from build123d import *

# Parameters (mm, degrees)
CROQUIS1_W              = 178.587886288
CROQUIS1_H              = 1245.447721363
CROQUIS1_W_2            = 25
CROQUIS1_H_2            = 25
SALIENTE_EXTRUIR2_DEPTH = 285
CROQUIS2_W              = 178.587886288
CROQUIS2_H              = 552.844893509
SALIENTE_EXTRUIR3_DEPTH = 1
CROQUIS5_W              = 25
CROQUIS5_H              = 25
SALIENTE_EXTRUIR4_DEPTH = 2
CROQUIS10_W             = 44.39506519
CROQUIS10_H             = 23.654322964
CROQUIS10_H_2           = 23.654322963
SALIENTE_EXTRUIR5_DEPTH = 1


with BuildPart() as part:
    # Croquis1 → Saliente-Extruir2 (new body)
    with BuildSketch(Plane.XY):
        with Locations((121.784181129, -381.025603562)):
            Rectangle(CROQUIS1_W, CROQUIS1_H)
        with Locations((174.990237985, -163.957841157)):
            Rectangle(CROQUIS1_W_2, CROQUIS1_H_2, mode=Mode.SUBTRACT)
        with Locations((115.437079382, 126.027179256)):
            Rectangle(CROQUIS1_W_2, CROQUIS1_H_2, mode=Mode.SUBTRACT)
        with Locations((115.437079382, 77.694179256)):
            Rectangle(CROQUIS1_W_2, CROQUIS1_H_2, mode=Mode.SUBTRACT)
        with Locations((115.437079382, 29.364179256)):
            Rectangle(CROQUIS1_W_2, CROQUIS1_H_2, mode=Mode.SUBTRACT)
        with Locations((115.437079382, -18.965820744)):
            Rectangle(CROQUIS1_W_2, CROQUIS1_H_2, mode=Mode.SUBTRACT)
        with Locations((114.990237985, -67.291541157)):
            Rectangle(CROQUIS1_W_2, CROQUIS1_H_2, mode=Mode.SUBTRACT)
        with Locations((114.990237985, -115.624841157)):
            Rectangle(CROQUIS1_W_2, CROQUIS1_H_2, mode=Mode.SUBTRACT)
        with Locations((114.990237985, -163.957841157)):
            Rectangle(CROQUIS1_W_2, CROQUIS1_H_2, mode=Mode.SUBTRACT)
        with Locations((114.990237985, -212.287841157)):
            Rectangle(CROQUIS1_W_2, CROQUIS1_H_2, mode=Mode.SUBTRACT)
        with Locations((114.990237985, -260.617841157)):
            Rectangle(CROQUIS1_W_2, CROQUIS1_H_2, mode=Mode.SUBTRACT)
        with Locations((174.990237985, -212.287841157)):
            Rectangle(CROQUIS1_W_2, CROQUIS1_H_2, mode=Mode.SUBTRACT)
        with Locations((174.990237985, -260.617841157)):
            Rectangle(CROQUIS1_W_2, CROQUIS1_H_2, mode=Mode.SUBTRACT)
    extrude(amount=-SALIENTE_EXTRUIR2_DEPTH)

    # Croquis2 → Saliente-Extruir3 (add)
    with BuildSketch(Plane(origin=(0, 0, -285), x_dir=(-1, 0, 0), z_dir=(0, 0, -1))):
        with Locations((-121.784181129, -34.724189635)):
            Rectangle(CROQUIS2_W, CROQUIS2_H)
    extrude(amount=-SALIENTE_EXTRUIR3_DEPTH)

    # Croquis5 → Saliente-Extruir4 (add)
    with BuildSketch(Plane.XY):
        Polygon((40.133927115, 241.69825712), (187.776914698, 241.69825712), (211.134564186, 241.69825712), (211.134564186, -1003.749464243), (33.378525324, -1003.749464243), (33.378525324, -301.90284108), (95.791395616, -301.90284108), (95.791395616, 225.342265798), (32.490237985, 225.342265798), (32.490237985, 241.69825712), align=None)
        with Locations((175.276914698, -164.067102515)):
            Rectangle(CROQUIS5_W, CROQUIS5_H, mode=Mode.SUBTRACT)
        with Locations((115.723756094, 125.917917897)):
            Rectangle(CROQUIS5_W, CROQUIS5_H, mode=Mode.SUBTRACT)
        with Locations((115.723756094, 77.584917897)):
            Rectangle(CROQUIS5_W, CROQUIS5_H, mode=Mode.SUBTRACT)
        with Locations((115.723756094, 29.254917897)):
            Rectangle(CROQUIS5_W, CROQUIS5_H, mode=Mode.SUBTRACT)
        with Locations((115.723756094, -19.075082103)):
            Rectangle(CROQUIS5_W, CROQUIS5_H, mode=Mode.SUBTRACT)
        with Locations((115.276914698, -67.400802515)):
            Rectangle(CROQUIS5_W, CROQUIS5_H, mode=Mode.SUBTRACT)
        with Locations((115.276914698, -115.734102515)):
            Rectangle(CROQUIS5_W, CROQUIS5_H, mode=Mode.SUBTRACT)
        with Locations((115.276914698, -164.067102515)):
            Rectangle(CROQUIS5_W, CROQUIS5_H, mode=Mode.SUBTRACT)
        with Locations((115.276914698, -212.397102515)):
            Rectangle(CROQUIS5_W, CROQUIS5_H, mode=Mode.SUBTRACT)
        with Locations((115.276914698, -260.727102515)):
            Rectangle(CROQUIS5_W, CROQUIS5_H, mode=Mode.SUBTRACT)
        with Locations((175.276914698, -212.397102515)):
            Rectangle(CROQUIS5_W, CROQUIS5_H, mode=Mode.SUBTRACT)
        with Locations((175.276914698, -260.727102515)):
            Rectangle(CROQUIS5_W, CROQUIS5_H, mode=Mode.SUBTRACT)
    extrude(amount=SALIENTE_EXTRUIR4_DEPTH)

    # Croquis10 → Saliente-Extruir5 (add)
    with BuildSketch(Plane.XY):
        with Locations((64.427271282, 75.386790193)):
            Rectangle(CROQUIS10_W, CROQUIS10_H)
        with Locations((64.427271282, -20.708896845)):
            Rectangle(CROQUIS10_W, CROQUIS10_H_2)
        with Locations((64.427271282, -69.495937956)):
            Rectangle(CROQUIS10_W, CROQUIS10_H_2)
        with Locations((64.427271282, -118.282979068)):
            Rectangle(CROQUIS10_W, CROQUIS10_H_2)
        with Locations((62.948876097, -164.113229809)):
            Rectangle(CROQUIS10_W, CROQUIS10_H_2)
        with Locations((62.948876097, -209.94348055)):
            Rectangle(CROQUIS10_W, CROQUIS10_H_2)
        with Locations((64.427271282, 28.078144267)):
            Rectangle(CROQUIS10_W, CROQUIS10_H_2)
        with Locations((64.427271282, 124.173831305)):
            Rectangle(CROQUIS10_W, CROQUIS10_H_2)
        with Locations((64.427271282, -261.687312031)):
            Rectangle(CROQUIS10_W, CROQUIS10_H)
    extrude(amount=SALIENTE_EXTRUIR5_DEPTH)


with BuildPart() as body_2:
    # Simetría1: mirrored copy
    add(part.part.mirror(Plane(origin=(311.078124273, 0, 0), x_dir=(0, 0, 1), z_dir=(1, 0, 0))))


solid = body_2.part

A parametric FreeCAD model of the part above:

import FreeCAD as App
import Part
import Sketcher

V = App.Vector

doc = App.newDocument("Part")
params = doc.addObject("Spreadsheet::Sheet", "Params")
for row, (alias, value) in enumerate([
    ("sketch1_width", "25 mm"),
    ("pad1_length", "285 mm"),
    ("pad2_length", "1 mm"),
    ("sketch3_width", "25 mm"),
    ("pad3_length", "2 mm"),
    ("pad4_length", "1 mm"),
], start=1):
    params.set(f"A{row}", alias)
    params.set(f"B{row}", "=" + value)
    params.setAlias(f"B{row}", alias)

body = doc.addObject("PartDesign::Body", "Body")

# Sketch on XY plane
sketch1 = body.newObject("Sketcher::SketchObject", "Sketch")
sketch1.AttachmentSupport = (doc.getObject("XY_Plane"), [""])
sketch1.MapMode = "FlatFace"
sketch1.addGeometry(Part.LineSegment(V(32, 242, 0), V(32, -1004, 0)), False)
sketch1.addGeometry(Part.LineSegment(V(32, -1004, 0), V(211, -1004, 0)), False)
sketch1.addGeometry(Part.LineSegment(V(211, -1004, 0), V(211, 242, 0)), False)
sketch1.addGeometry(Part.LineSegment(V(211, 242, 0), V(32, 242, 0)), False)
sketch1.addGeometry(Part.LineSegment(V(127, -273, 0), V(102, -273, 0)), False)
sketch1.addGeometry(Part.LineSegment(V(102, -273, 0), V(102, -248, 0)), False)
sketch1.addGeometry(Part.LineSegment(V(102, -248, 0), V(127, -248, 0)), False)
sketch1.addGeometry(Part.LineSegment(V(127, -248, 0), V(127, -273, 0)), False)
sketch1.addGeometry(Part.LineSegment(V(127, -225, 0), V(102, -225, 0)), False)
sketch1.addGeometry(Part.LineSegment(V(102, -225, 0), V(102, -200, 0)), False)
sketch1.addGeometry(Part.LineSegment(V(102, -200, 0), V(127, -200, 0)), False)
sketch1.addGeometry(Part.LineSegment(V(127, -200, 0), V(127, -225, 0)), False)
sketch1.addGeometry(Part.LineSegment(V(127, -176, 0), V(102, -176, 0)), False)
sketch1.addGeometry(Part.LineSegment(V(102, -176, 0), V(102, -151, 0)), False)
sketch1.addGeometry(Part.LineSegment(V(102, -151, 0), V(127, -151, 0)), False)
sketch1.addGeometry(Part.LineSegment(V(127, -151, 0), V(127, -176, 0)), False)
sketch1.addGeometry(Part.LineSegment(V(127, -128, 0), V(102, -128, 0)), False)
sketch1.addGeometry(Part.LineSegment(V(102, -128, 0), V(102, -103, 0)), False)
sketch1.addGeometry(Part.LineSegment(V(102, -103, 0), V(127, -103, 0)), False)
sketch1.addGeometry(Part.LineSegment(V(127, -103, 0), V(127, -128, 0)), False)
sketch1.addGeometry(Part.LineSegment(V(187, -273, 0), V(162, -273, 0)), False)
sketch1.addGeometry(Part.LineSegment(V(162, -273, 0), V(162, -248, 0)), False)
sketch1.addGeometry(Part.LineSegment(V(162, -248, 0), V(187, -248, 0)), False)
sketch1.addGeometry(Part.LineSegment(V(187, -248, 0), V(187, -273, 0)), False)
sketch1.addGeometry(Part.LineSegment(V(187, -225, 0), V(162, -225, 0)), False)
sketch1.addGeometry(Part.LineSegment(V(162, -225, 0), V(162, -200, 0)), False)
sketch1.addGeometry(Part.LineSegment(V(162, -200, 0), V(187, -200, 0)), False)
sketch1.addGeometry(Part.LineSegment(V(187, -200, 0), V(187, -225, 0)), False)
sketch1.addGeometry(Part.LineSegment(V(187, -176, 0), V(162, -176, 0)), False)
sketch1.addGeometry(Part.LineSegment(V(162, -176, 0), V(162, -151, 0)), False)
sketch1.addGeometry(Part.LineSegment(V(162, -151, 0), V(187, -151, 0)), False)
sketch1.addGeometry(Part.LineSegment(V(187, -151, 0), V(187, -176, 0)), False)
sketch1.addGeometry(Part.LineSegment(V(127, -80, 0), V(102, -80, 0)), False)
sketch1.addGeometry(Part.LineSegment(V(102, -80, 0), V(102, -55, 0)), False)
sketch1.addGeometry(Part.LineSegment(V(102, -55, 0), V(127, -55, 0)), False)
sketch1.addGeometry(Part.LineSegment(V(127, -55, 0), V(127, -80, 0)), False)
sketch1.addGeometry(Part.LineSegment(V(128, -31, 0), V(103, -31, 0)), False)
sketch1.addGeometry(Part.LineSegment(V(103, -31, 0), V(103, -6, 0)), False)
sketch1.addGeometry(Part.LineSegment(V(103, -6, 0), V(128, -6, 0)), False)
sketch1.addGeometry(Part.LineSegment(V(128, -6, 0), V(128, -31, 0)), False)
sketch1.addGeometry(Part.LineSegment(V(128, 17, 0), V(103, 17, 0)), False)
sketch1.addGeometry(Part.LineSegment(V(103, 17, 0), V(103, 42, 0)), False)
sketch1.addGeometry(Part.LineSegment(V(103, 42, 0), V(128, 42, 0)), False)
sketch1.addGeometry(Part.LineSegment(V(128, 42, 0), V(128, 17, 0)), False)
sketch1.addGeometry(Part.LineSegment(V(128, 65, 0), V(103, 65, 0)), False)
sketch1.addGeometry(Part.LineSegment(V(103, 65, 0), V(103, 90, 0)), False)
sketch1.addGeometry(Part.LineSegment(V(103, 90, 0), V(128, 90, 0)), False)
sketch1.addGeometry(Part.LineSegment(V(128, 90, 0), V(128, 65, 0)), False)
sketch1.addGeometry(Part.LineSegment(V(128, 114, 0), V(103, 114, 0)), False)
sketch1.addGeometry(Part.LineSegment(V(103, 114, 0), V(103, 139, 0)), False)
sketch1.addGeometry(Part.LineSegment(V(103, 139, 0), V(128, 139, 0)), False)
sketch1.addGeometry(Part.LineSegment(V(128, 139, 0), V(128, 114, 0)), False)
sketch1.addConstraint(Sketcher.Constraint("Coincident", 0, 2, 1, 1))
sketch1.addConstraint(Sketcher.Constraint("Coincident", 1, 2, 2, 1))
sketch1.addConstraint(Sketcher.Constraint("Coincident", 2, 2, 3, 1))
sketch1.addConstraint(Sketcher.Constraint("Coincident", 3, 2, 0, 1))
sketch1.addConstraint(Sketcher.Constraint("Coincident", 4, 2, 5, 1))
sketch1.addConstraint(Sketcher.Constraint("Coincident", 5, 2, 6, 1))
sketch1.addConstraint(Sketcher.Constraint("Coincident", 6, 2, 7, 1))
sketch1.addConstraint(Sketcher.Constraint("Coincident", 7, 2, 4, 1))
sketch1.addConstraint(Sketcher.Constraint("Coincident", 8, 2, 9, 1))
sketch1.addConstraint(Sketcher.Constraint("Coincident", 9, 2, 10, 1))
sketch1.addConstraint(Sketcher.Constraint("Coincident", 10, 2, 11, 1))
sketch1.addConstraint(Sketcher.Constraint("Coincident", 11, 2, 8, 1))
sketch1.addConstraint(Sketcher.Constraint("Coincident", 12, 2, 13, 1))
sketch1.addConstraint(Sketcher.Constraint("Coincident", 13, 2, 14, 1))
sketch1.addConstraint(Sketcher.Constraint("Coincident", 14, 2, 15, 1))
sketch1.addConstraint(Sketcher.Constraint("Coincident", 15, 2, 12, 1))
sketch1.addConstraint(Sketcher.Constraint("Coincident", 16, 2, 17, 1))
sketch1.addConstraint(Sketcher.Constraint("Coincident", 17, 2, 18, 1))
sketch1.addConstraint(Sketcher.Constraint("Coincident", 18, 2, 19, 1))
sketch1.addConstraint(Sketcher.Constraint("Coincident", 19, 2, 16, 1))
sketch1.addConstraint(Sketcher.Constraint("Coincident", 20, 2, 21, 1))
sketch1.addConstraint(Sketcher.Constraint("Coincident", 21, 2, 22, 1))
sketch1.addConstraint(Sketcher.Constraint("Coincident", 22, 2, 23, 1))
sketch1.addConstraint(Sketcher.Constraint("Coincident", 23, 2, 20, 1))
sketch1.addConstraint(Sketcher.Constraint("Coincident", 24, 2, 25, 1))
sketch1.addConstraint(Sketcher.Constraint("Coincident", 25, 2, 26, 1))
sketch1.addConstraint(Sketcher.Constraint("Coincident", 26, 2, 27, 1))
sketch1.addConstraint(Sketcher.Constraint("Coincident", 27, 2, 24, 1))
sketch1.addConstraint(Sketcher.Constraint("Coincident", 28, 2, 29, 1))
sketch1.addConstraint(Sketcher.Constraint("Coincident", 29, 2, 30, 1))
sketch1.addConstraint(Sketcher.Constraint("Coincident", 30, 2, 31, 1))
sketch1.addConstraint(Sketcher.Constraint("Coincident", 31, 2, 28, 1))
sketch1.addConstraint(Sketcher.Constraint("Coincident", 32, 2, 33, 1))
sketch1.addConstraint(Sketcher.Constraint("Coincident", 33, 2, 34, 1))
sketch1.addConstraint(Sketcher.Constraint("Coincident", 34, 2, 35, 1))
sketch1.addConstraint(Sketcher.Constraint("Coincident", 35, 2, 32, 1))
sketch1.addConstraint(Sketcher.Constraint("Coincident", 36, 2, 37, 1))
sketch1.addConstraint(Sketcher.Constraint("Coincident", 37, 2, 38, 1))
sketch1.addConstraint(Sketcher.Constraint("Coincident", 38, 2, 39, 1))
sketch1.addConstraint(Sketcher.Constraint("Coincident", 39, 2, 36, 1))
sketch1.addConstraint(Sketcher.Constraint("Coincident", 40, 2, 41, 1))
sketch1.addConstraint(Sketcher.Constraint("Coincident", 41, 2, 42, 1))
sketch1.addConstraint(Sketcher.Constraint("Coincident", 42, 2, 43, 1))
sketch1.addConstraint(Sketcher.Constraint("Coincident", 43, 2, 40, 1))
sketch1.addConstraint(Sketcher.Constraint("Coincident", 44, 2, 45, 1))
sketch1.addConstraint(Sketcher.Constraint("Coincident", 45, 2, 46, 1))
sketch1.addConstraint(Sketcher.Constraint("Coincident", 46, 2, 47, 1))
sketch1.addConstraint(Sketcher.Constraint("Coincident", 47, 2, 44, 1))
sketch1.addConstraint(Sketcher.Constraint("Coincident", 48, 2, 49, 1))
sketch1.addConstraint(Sketcher.Constraint("Coincident", 49, 2, 50, 1))
sketch1.addConstraint(Sketcher.Constraint("Coincident", 50, 2, 51, 1))
sketch1.addConstraint(Sketcher.Constraint("Coincident", 51, 2, 48, 1))
sketch1.addConstraint(Sketcher.Constraint("Vertical", 0))
sketch1.addConstraint(Sketcher.Constraint("Horizontal", 1))
sketch1.addConstraint(Sketcher.Constraint("Vertical", 2))
sketch1.addConstraint(Sketcher.Constraint("Horizontal", 3))
sketch1.addConstraint(Sketcher.Constraint("Horizontal", 4))
sketch1.addConstraint(Sketcher.Constraint("Vertical", 5))
sketch1.addConstraint(Sketcher.Constraint("Horizontal", 6))
sketch1.addConstraint(Sketcher.Constraint("Vertical", 7))
sketch1.addConstraint(Sketcher.Constraint("Horizontal", 8))
sketch1.addConstraint(Sketcher.Constraint("Vertical", 9))
sketch1.addConstraint(Sketcher.Constraint("Horizontal", 10))
sketch1.addConstraint(Sketcher.Constraint("Vertical", 11))
sketch1.addConstraint(Sketcher.Constraint("Horizontal", 12))
sketch1.addConstraint(Sketcher.Constraint("Vertical", 13))
sketch1.addConstraint(Sketcher.Constraint("Horizontal", 14))
sketch1.addConstraint(Sketcher.Constraint("Vertical", 15))
sketch1.addConstraint(Sketcher.Constraint("Horizontal", 16))
sketch1.addConstraint(Sketcher.Constraint("Vertical", 17))
sketch1.addConstraint(Sketcher.Constraint("Horizontal", 18))
sketch1.addConstraint(Sketcher.Constraint("Vertical", 19))
sketch1.addConstraint(Sketcher.Constraint("Horizontal", 20))
sketch1.addConstraint(Sketcher.Constraint("Vertical", 21))
sketch1.addConstraint(Sketcher.Constraint("Horizontal", 22))
sketch1.addConstraint(Sketcher.Constraint("Vertical", 23))
sketch1.addConstraint(Sketcher.Constraint("Horizontal", 24))
sketch1.addConstraint(Sketcher.Constraint("Vertical", 25))
sketch1.addConstraint(Sketcher.Constraint("Horizontal", 26))
sketch1.addConstraint(Sketcher.Constraint("Vertical", 27))
sketch1.addConstraint(Sketcher.Constraint("Horizontal", 28))
sketch1.addConstraint(Sketcher.Constraint("Vertical", 29))
sketch1.addConstraint(Sketcher.Constraint("Horizontal", 30))
sketch1.addConstraint(Sketcher.Constraint("Vertical", 31))
sketch1.addConstraint(Sketcher.Constraint("Horizontal", 32))
sketch1.addConstraint(Sketcher.Constraint("Vertical", 33))
sketch1.addConstraint(Sketcher.Constraint("Horizontal", 34))
sketch1.addConstraint(Sketcher.Constraint("Vertical", 35))
sketch1.addConstraint(Sketcher.Constraint("Horizontal", 36))
sketch1.addConstraint(Sketcher.Constraint("Vertical", 37))
sketch1.addConstraint(Sketcher.Constraint("Horizontal", 38))
sketch1.addConstraint(Sketcher.Constraint("Vertical", 39))
sketch1.addConstraint(Sketcher.Constraint("Horizontal", 40))
sketch1.addConstraint(Sketcher.Constraint("Vertical", 41))
sketch1.addConstraint(Sketcher.Constraint("Horizontal", 42))
sketch1.addConstraint(Sketcher.Constraint("Vertical", 43))
sketch1.addConstraint(Sketcher.Constraint("Horizontal", 44))
sketch1.addConstraint(Sketcher.Constraint("Vertical", 45))
sketch1.addConstraint(Sketcher.Constraint("Horizontal", 46))
sketch1.addConstraint(Sketcher.Constraint("Vertical", 47))
sketch1.addConstraint(Sketcher.Constraint("Horizontal", 48))
sketch1.addConstraint(Sketcher.Constraint("Vertical", 49))
sketch1.addConstraint(Sketcher.Constraint("Horizontal", 50))
sketch1.addConstraint(Sketcher.Constraint("Vertical", 51))
sketch1.addConstraint(Sketcher.Constraint("Horizontal", 7, 2, 20, 2))
sketch1.addConstraint(Sketcher.Constraint("Horizontal", 6, 2, 21, 2))
sketch1.addConstraint(Sketcher.Constraint("Horizontal", 11, 2, 24, 2))
sketch1.addConstraint(Sketcher.Constraint("Horizontal", 10, 2, 25, 2))
sketch1.addConstraint(Sketcher.Constraint("Horizontal", 15, 2, 28, 2))
sketch1.addConstraint(Sketcher.Constraint("Horizontal", 14, 2, 29, 2))
sketch1.addConstraint(Sketcher.Constraint("Vertical", 5, 2, 8, 2))
sketch1.addConstraint(Sketcher.Constraint("Vertical", 7, 2, 10, 2))
sketch1.addConstraint(Sketcher.Constraint("Vertical", 9, 2, 12, 2))
sketch1.addConstraint(Sketcher.Constraint("Vertical", 11, 2, 14, 2))
sketch1.addConstraint(Sketcher.Constraint("Vertical", 13, 2, 16, 2))
sketch1.addConstraint(Sketcher.Constraint("Vertical", 15, 2, 18, 2))
sketch1.addConstraint(Sketcher.Constraint("Vertical", 21, 2, 24, 2))
sketch1.addConstraint(Sketcher.Constraint("Vertical", 23, 2, 26, 2))
sketch1.addConstraint(Sketcher.Constraint("Vertical", 25, 2, 28, 2))
sketch1.addConstraint(Sketcher.Constraint("Vertical", 27, 2, 30, 2))
sketch1.addConstraint(Sketcher.Constraint("Vertical", 17, 2, 32, 2))
sketch1.addConstraint(Sketcher.Constraint("Vertical", 19, 2, 34, 2))
sketch1.addConstraint(Sketcher.Constraint("Vertical", 37, 2, 40, 2))
sketch1.addConstraint(Sketcher.Constraint("Vertical", 39, 2, 42, 2))
sketch1.addConstraint(Sketcher.Constraint("Vertical", 41, 2, 44, 2))
sketch1.addConstraint(Sketcher.Constraint("Vertical", 43, 2, 46, 2))
sketch1.addConstraint(Sketcher.Constraint("Vertical", 45, 2, 48, 2))
sketch1.addConstraint(Sketcher.Constraint("Vertical", 47, 2, 50, 2))
sketch1.addConstraint(Sketcher.Constraint("Equal", 18, 20))
sketch1.addConstraint(Sketcher.Constraint("Equal", 34, 36))
sketch1.addConstraint(Sketcher.Constraint("Equal", 50, 5))
sketch1.addConstraint(Sketcher.Constraint("Equal", 7, 9))
sketch1.addConstraint(Sketcher.Constraint("Equal", 11, 13))
sketch1.addConstraint(Sketcher.Constraint("Equal", 15, 17))
sketch1.addConstraint(Sketcher.Constraint("Equal", 31, 33))
sketch1.addConstraint(Sketcher.Constraint("Equal", 35, 37))
sketch1.addConstraint(Sketcher.Constraint("Equal", 39, 41))
sketch1.addConstraint(Sketcher.Constraint("Equal", 43, 45))
sketch1.addConstraint(Sketcher.Constraint("Equal", 47, 49))
sketch1.addConstraint(Sketcher.Constraint("DistanceX", 4, 2, 4, 1, 25.0))
sketch1.addConstraint(Sketcher.Constraint("DistanceX", 3, 2, 4, 2, 70.0))
sketch1.addConstraint(Sketcher.Constraint("DistanceX", 7, 2, 20, 2, 35.0))
sketch1.addConstraint(Sketcher.Constraint("DistanceY", 5, 2, 8, 2, 23.33))
sketch1.addConstraint(Sketcher.Constraint("DistanceY", 9, 2, 12, 2, 23.33))
sketch1.addConstraint(Sketcher.Constraint("DistanceY", 37, 2, 40, 2, 23.33))
sketch1.addConstraint(Sketcher.Constraint("DistanceY", 41, 2, 44, 2, 23.33))
sketch1.addConstraint(Sketcher.Constraint("DistanceY", 13, 2, 16, 2, 23.333))
sketch1.addConstraint(Sketcher.Constraint("DistanceY", 45, 2, 48, 2, 23.333))
sketch1.addConstraint(Sketcher.Constraint("DistanceY", 0, 2, 0, 1, 1245.447721))
sketch1.addConstraint(Sketcher.Constraint("DistanceY", 4, 2, 3, 2, 514.816098))
sketch1.addConstraint(Sketcher.Constraint("DistanceY", 17, 2, 32, 2, 23.3333))
sketch1.addConstraint(Sketcher.Constraint("DistanceX", 1, 1, 1, 2, 178.587886))
sketch1.addConstraint(Sketcher.Constraint("DistanceY", 4, 2, -1, 1, 273.117841))
sketch1.addConstraint(Sketcher.Constraint("DistanceX", -1, 1, 36, 2, 102.937079))
sketch1.addConstraint(Sketcher.Constraint("DistanceY", 36, 2, -1, 1, 31.465821))
sketch1.addConstraint(Sketcher.Constraint("DistanceX", 33, 2, 36, 2, 0.446841))
sketch1.setExpression("Constraints[139]", "Params.sketch1_width")
pad1 = body.newObject("PartDesign::Pad", "Pad")
pad1.Profile = sketch1
pad1.setExpression("Length", "Params.pad1_length")
pad1.Reversed = True

# Sketch on XY plane
sketch2 = body.newObject("Sketcher::SketchObject", "Sketch001")
sketch2.AttachmentSupport = (doc.getObject("XY_Plane"), [""])
sketch2.MapMode = "FlatFace"
sketch2.AttachmentOffset = App.Placement(V(0, 0, -285), App.Rotation())
sketch2.addGeometry(Part.LineSegment(V(211, 242, 0), V(211, -311, 0)), False)
sketch2.addGeometry(Part.LineSegment(V(211, -311, 0), V(32, -311, 0)), False)
sketch2.addGeometry(Part.LineSegment(V(32, -311, 0), V(32, 242, 0)), False)
sketch2.addGeometry(Part.LineSegment(V(32, 242, 0), V(211, 242, 0)), False)
sketch2.addConstraint(Sketcher.Constraint("Coincident", 0, 2, 1, 1))
sketch2.addConstraint(Sketcher.Constraint("Coincident", 1, 2, 2, 1))
sketch2.addConstraint(Sketcher.Constraint("Coincident", 2, 2, 3, 1))
sketch2.addConstraint(Sketcher.Constraint("Coincident", 3, 2, 0, 1))
sketch2.addConstraint(Sketcher.Constraint("Vertical", 0))
sketch2.addConstraint(Sketcher.Constraint("Horizontal", 1))
sketch2.addConstraint(Sketcher.Constraint("Vertical", 2))
sketch2.addConstraint(Sketcher.Constraint("Horizontal", 3))
sketch2.addConstraint(Sketcher.Constraint("DistanceX", 1, 2, 1, 1, 178.587886))
sketch2.addConstraint(Sketcher.Constraint("DistanceY", 0, 2, 0, 1, 552.844894))
sketch2.addConstraint(Sketcher.Constraint("DistanceX", -1, 1, 0, 2, 211.078124))
sketch2.addConstraint(Sketcher.Constraint("DistanceY", 0, 2, -1, 1, 311.146636))
pad2 = body.newObject("PartDesign::Pad", "Pad001")
pad2.Profile = sketch2
pad2.setExpression("Length", "Params.pad2_length")

# Sketch on XY plane
sketch3 = body.newObject("Sketcher::SketchObject", "Sketch002")
sketch3.AttachmentSupport = (doc.getObject("XY_Plane"), [""])
sketch3.MapMode = "FlatFace"
sketch3.addGeometry(Part.LineSegment(V(211, 242, 0), V(32, 242, 0)), False)
sketch3.addGeometry(Part.LineSegment(V(32, 242, 0), V(32, 225, 0)), False)
sketch3.addGeometry(Part.LineSegment(V(32, 225, 0), V(96, 225, 0)), False)
sketch3.addGeometry(Part.LineSegment(V(96, 225, 0), V(96, -302, 0)), False)
sketch3.addGeometry(Part.LineSegment(V(96, -302, 0), V(33, -302, 0)), False)
sketch3.addGeometry(Part.LineSegment(V(33, -302, 0), V(33, -1004, 0)), False)
sketch3.addGeometry(Part.LineSegment(V(33, -1004, 0), V(211, -1004, 0)), False)
sketch3.addGeometry(Part.LineSegment(V(211, -1004, 0), V(211, 242, 0)), False)
sketch3.addGeometry(Part.LineSegment(V(163, -273, 0), V(163, -248, 0)), False)
sketch3.addGeometry(Part.LineSegment(V(163, -248, 0), V(188, -248, 0)), False)
sketch3.addGeometry(Part.LineSegment(V(188, -248, 0), V(188, -273, 0)), False)
sketch3.addGeometry(Part.LineSegment(V(188, -273, 0), V(163, -273, 0)), False)
sketch3.addGeometry(Part.LineSegment(V(163, -225, 0), V(163, -200, 0)), False)
sketch3.addGeometry(Part.LineSegment(V(163, -200, 0), V(188, -200, 0)), False)
sketch3.addGeometry(Part.LineSegment(V(188, -200, 0), V(188, -225, 0)), False)
sketch3.addGeometry(Part.LineSegment(V(188, -225, 0), V(163, -225, 0)), False)
sketch3.addGeometry(Part.LineSegment(V(163, -177, 0), V(163, -152, 0)), False)
sketch3.addGeometry(Part.LineSegment(V(163, -152, 0), V(188, -152, 0)), False)
sketch3.addGeometry(Part.LineSegment(V(188, -152, 0), V(188, -177, 0)), False)
sketch3.addGeometry(Part.LineSegment(V(188, -177, 0), V(163, -177, 0)), False)
sketch3.addGeometry(Part.LineSegment(V(103, -273, 0), V(103, -248, 0)), False)
sketch3.addGeometry(Part.LineSegment(V(103, -248, 0), V(128, -248, 0)), False)
sketch3.addGeometry(Part.LineSegment(V(128, -248, 0), V(128, -273, 0)), False)
sketch3.addGeometry(Part.LineSegment(V(128, -273, 0), V(103, -273, 0)), False)
sketch3.addGeometry(Part.LineSegment(V(103, -225, 0), V(103, -200, 0)), False)
sketch3.addGeometry(Part.LineSegment(V(103, -200, 0), V(128, -200, 0)), False)
sketch3.addGeometry(Part.LineSegment(V(128, -200, 0), V(128, -225, 0)), False)
sketch3.addGeometry(Part.LineSegment(V(128, -225, 0), V(103, -225, 0)), False)
sketch3.addGeometry(Part.LineSegment(V(103, -177, 0), V(103, -152, 0)), False)
sketch3.addGeometry(Part.LineSegment(V(103, -152, 0), V(128, -152, 0)), False)
sketch3.addGeometry(Part.LineSegment(V(128, -152, 0), V(128, -177, 0)), False)
sketch3.addGeometry(Part.LineSegment(V(128, -177, 0), V(103, -177, 0)), False)
sketch3.addGeometry(Part.LineSegment(V(103, -128, 0), V(103, -103, 0)), False)
sketch3.addGeometry(Part.LineSegment(V(103, -103, 0), V(128, -103, 0)), False)
sketch3.addGeometry(Part.LineSegment(V(128, -103, 0), V(128, -128, 0)), False)
sketch3.addGeometry(Part.LineSegment(V(128, -128, 0), V(103, -128, 0)), False)
sketch3.addGeometry(Part.LineSegment(V(103, -80, 0), V(103, -55, 0)), False)
sketch3.addGeometry(Part.LineSegment(V(103, -55, 0), V(128, -55, 0)), False)
sketch3.addGeometry(Part.LineSegment(V(128, -55, 0), V(128, -80, 0)), False)
sketch3.addGeometry(Part.LineSegment(V(128, -80, 0), V(103, -80, 0)), False)
sketch3.addGeometry(Part.LineSegment(V(103, -32, 0), V(103, -7, 0)), False)
sketch3.addGeometry(Part.LineSegment(V(103, -7, 0), V(128, -7, 0)), False)
sketch3.addGeometry(Part.LineSegment(V(128, -7, 0), V(128, -32, 0)), False)
sketch3.addGeometry(Part.LineSegment(V(128, -32, 0), V(103, -32, 0)), False)
sketch3.addGeometry(Part.LineSegment(V(103, 17, 0), V(103, 42, 0)), False)
sketch3.addGeometry(Part.LineSegment(V(103, 42, 0), V(128, 42, 0)), False)
sketch3.addGeometry(Part.LineSegment(V(128, 42, 0), V(128, 17, 0)), False)
sketch3.addGeometry(Part.LineSegment(V(128, 17, 0), V(103, 17, 0)), False)
sketch3.addGeometry(Part.LineSegment(V(103, 65, 0), V(103, 90, 0)), False)
sketch3.addGeometry(Part.LineSegment(V(103, 90, 0), V(128, 90, 0)), False)
sketch3.addGeometry(Part.LineSegment(V(128, 90, 0), V(128, 65, 0)), False)
sketch3.addGeometry(Part.LineSegment(V(128, 65, 0), V(103, 65, 0)), False)
sketch3.addGeometry(Part.LineSegment(V(103, 113, 0), V(103, 138, 0)), False)
sketch3.addGeometry(Part.LineSegment(V(103, 138, 0), V(128, 138, 0)), False)
sketch3.addGeometry(Part.LineSegment(V(128, 138, 0), V(128, 113, 0)), False)
sketch3.addGeometry(Part.LineSegment(V(128, 113, 0), V(103, 113, 0)), False)
sketch3.addConstraint(Sketcher.Constraint("Coincident", 0, 2, 1, 1))
sketch3.addConstraint(Sketcher.Constraint("Coincident", 1, 2, 2, 1))
sketch3.addConstraint(Sketcher.Constraint("Coincident", 2, 2, 3, 1))
sketch3.addConstraint(Sketcher.Constraint("Coincident", 3, 2, 4, 1))
sketch3.addConstraint(Sketcher.Constraint("Coincident", 4, 2, 5, 1))
sketch3.addConstraint(Sketcher.Constraint("Coincident", 5, 2, 6, 1))
sketch3.addConstraint(Sketcher.Constraint("Coincident", 6, 2, 7, 1))
sketch3.addConstraint(Sketcher.Constraint("Coincident", 7, 2, 0, 1))
sketch3.addConstraint(Sketcher.Constraint("Coincident", 8, 2, 9, 1))
sketch3.addConstraint(Sketcher.Constraint("Coincident", 9, 2, 10, 1))
sketch3.addConstraint(Sketcher.Constraint("Coincident", 10, 2, 11, 1))
sketch3.addConstraint(Sketcher.Constraint("Coincident", 11, 2, 8, 1))
sketch3.addConstraint(Sketcher.Constraint("Coincident", 12, 2, 13, 1))
sketch3.addConstraint(Sketcher.Constraint("Coincident", 13, 2, 14, 1))
sketch3.addConstraint(Sketcher.Constraint("Coincident", 14, 2, 15, 1))
sketch3.addConstraint(Sketcher.Constraint("Coincident", 15, 2, 12, 1))
sketch3.addConstraint(Sketcher.Constraint("Coincident", 16, 2, 17, 1))
sketch3.addConstraint(Sketcher.Constraint("Coincident", 17, 2, 18, 1))
sketch3.addConstraint(Sketcher.Constraint("Coincident", 18, 2, 19, 1))
sketch3.addConstraint(Sketcher.Constraint("Coincident", 19, 2, 16, 1))
sketch3.addConstraint(Sketcher.Constraint("Coincident", 20, 2, 21, 1))
sketch3.addConstraint(Sketcher.Constraint("Coincident", 21, 2, 22, 1))
sketch3.addConstraint(Sketcher.Constraint("Coincident", 22, 2, 23, 1))
sketch3.addConstraint(Sketcher.Constraint("Coincident", 23, 2, 20, 1))
sketch3.addConstraint(Sketcher.Constraint("Coincident", 24, 2, 25, 1))
sketch3.addConstraint(Sketcher.Constraint("Coincident", 25, 2, 26, 1))
sketch3.addConstraint(Sketcher.Constraint("Coincident", 26, 2, 27, 1))
sketch3.addConstraint(Sketcher.Constraint("Coincident", 27, 2, 24, 1))
sketch3.addConstraint(Sketcher.Constraint("Coincident", 28, 2, 29, 1))
sketch3.addConstraint(Sketcher.Constraint("Coincident", 29, 2, 30, 1))
sketch3.addConstraint(Sketcher.Constraint("Coincident", 30, 2, 31, 1))
sketch3.addConstraint(Sketcher.Constraint("Coincident", 31, 2, 28, 1))
sketch3.addConstraint(Sketcher.Constraint("Coincident", 32, 2, 33, 1))
sketch3.addConstraint(Sketcher.Constraint("Coincident", 33, 2, 34, 1))
sketch3.addConstraint(Sketcher.Constraint("Coincident", 34, 2, 35, 1))
sketch3.addConstraint(Sketcher.Constraint("Coincident", 35, 2, 32, 1))
sketch3.addConstraint(Sketcher.Constraint("Coincident", 36, 2, 37, 1))
sketch3.addConstraint(Sketcher.Constraint("Coincident", 37, 2, 38, 1))
sketch3.addConstraint(Sketcher.Constraint("Coincident", 38, 2, 39, 1))
sketch3.addConstraint(Sketcher.Constraint("Coincident", 39, 2, 36, 1))
sketch3.addConstraint(Sketcher.Constraint("Coincident", 40, 2, 41, 1))
sketch3.addConstraint(Sketcher.Constraint("Coincident", 41, 2, 42, 1))
sketch3.addConstraint(Sketcher.Constraint("Coincident", 42, 2, 43, 1))
sketch3.addConstraint(Sketcher.Constraint("Coincident", 43, 2, 40, 1))
sketch3.addConstraint(Sketcher.Constraint("Coincident", 44, 2, 45, 1))
sketch3.addConstraint(Sketcher.Constraint("Coincident", 45, 2, 46, 1))
sketch3.addConstraint(Sketcher.Constraint("Coincident", 46, 2, 47, 1))
sketch3.addConstraint(Sketcher.Constraint("Coincident", 47, 2, 44, 1))
sketch3.addConstraint(Sketcher.Constraint("Coincident", 48, 2, 49, 1))
sketch3.addConstraint(Sketcher.Constraint("Coincident", 49, 2, 50, 1))
sketch3.addConstraint(Sketcher.Constraint("Coincident", 50, 2, 51, 1))
sketch3.addConstraint(Sketcher.Constraint("Coincident", 51, 2, 48, 1))
sketch3.addConstraint(Sketcher.Constraint("Coincident", 52, 2, 53, 1))
sketch3.addConstraint(Sketcher.Constraint("Coincident", 53, 2, 54, 1))
sketch3.addConstraint(Sketcher.Constraint("Coincident", 54, 2, 55, 1))
sketch3.addConstraint(Sketcher.Constraint("Coincident", 55, 2, 52, 1))
sketch3.addConstraint(Sketcher.Constraint("Horizontal", 0))
sketch3.addConstraint(Sketcher.Constraint("Vertical", 1))
sketch3.addConstraint(Sketcher.Constraint("Horizontal", 2))
sketch3.addConstraint(Sketcher.Constraint("Vertical", 3))
sketch3.addConstraint(Sketcher.Constraint("Horizontal", 4))
sketch3.addConstraint(Sketcher.Constraint("Vertical", 5))
sketch3.addConstraint(Sketcher.Constraint("Horizontal", 6))
sketch3.addConstraint(Sketcher.Constraint("Vertical", 7))
sketch3.addConstraint(Sketcher.Constraint("Vertical", 8))
sketch3.addConstraint(Sketcher.Constraint("Horizontal", 9))
sketch3.addConstraint(Sketcher.Constraint("Vertical", 10))
sketch3.addConstraint(Sketcher.Constraint("Horizontal", 11))
sketch3.addConstraint(Sketcher.Constraint("Vertical", 12))
sketch3.addConstraint(Sketcher.Constraint("Horizontal", 13))
sketch3.addConstraint(Sketcher.Constraint("Vertical", 14))
sketch3.addConstraint(Sketcher.Constraint("Horizontal", 15))
sketch3.addConstraint(Sketcher.Constraint("Vertical", 16))
sketch3.addConstraint(Sketcher.Constraint("Horizontal", 17))
sketch3.addConstraint(Sketcher.Constraint("Vertical", 18))
sketch3.addConstraint(Sketcher.Constraint("Horizontal", 19))
sketch3.addConstraint(Sketcher.Constraint("Vertical", 20))
sketch3.addConstraint(Sketcher.Constraint("Horizontal", 21))
sketch3.addConstraint(Sketcher.Constraint("Vertical", 22))
sketch3.addConstraint(Sketcher.Constraint("Horizontal", 23))
sketch3.addConstraint(Sketcher.Constraint("Vertical", 24))
sketch3.addConstraint(Sketcher.Constraint("Horizontal", 25))
sketch3.addConstraint(Sketcher.Constraint("Vertical", 26))
sketch3.addConstraint(Sketcher.Constraint("Horizontal", 27))
sketch3.addConstraint(Sketcher.Constraint("Vertical", 28))
sketch3.addConstraint(Sketcher.Constraint("Horizontal", 29))
sketch3.addConstraint(Sketcher.Constraint("Vertical", 30))
sketch3.addConstraint(Sketcher.Constraint("Horizontal", 31))
sketch3.addConstraint(Sketcher.Constraint("Vertical", 32))
sketch3.addConstraint(Sketcher.Constraint("Horizontal", 33))
sketch3.addConstraint(Sketcher.Constraint("Vertical", 34))
sketch3.addConstraint(Sketcher.Constraint("Horizontal", 35))
sketch3.addConstraint(Sketcher.Constraint("Vertical", 36))
sketch3.addConstraint(Sketcher.Constraint("Horizontal", 37))
sketch3.addConstraint(Sketcher.Constraint("Vertical", 38))
sketch3.addConstraint(Sketcher.Constraint("Horizontal", 39))
sketch3.addConstraint(Sketcher.Constraint("Vertical", 40))
sketch3.addConstraint(Sketcher.Constraint("Horizontal", 41))
sketch3.addConstraint(Sketcher.Constraint("Vertical", 42))
sketch3.addConstraint(Sketcher.Constraint("Horizontal", 43))
sketch3.addConstraint(Sketcher.Constraint("Vertical", 44))
sketch3.addConstraint(Sketcher.Constraint("Horizontal", 45))
sketch3.addConstraint(Sketcher.Constraint("Vertical", 46))
sketch3.addConstraint(Sketcher.Constraint("Horizontal", 47))
sketch3.addConstraint(Sketcher.Constraint("Vertical", 48))
sketch3.addConstraint(Sketcher.Constraint("Horizontal", 49))
sketch3.addConstraint(Sketcher.Constraint("Vertical", 50))
sketch3.addConstraint(Sketcher.Constraint("Horizontal", 51))
sketch3.addConstraint(Sketcher.Constraint("Vertical", 52))
sketch3.addConstraint(Sketcher.Constraint("Horizontal", 53))
sketch3.addConstraint(Sketcher.Constraint("Vertical", 54))
sketch3.addConstraint(Sketcher.Constraint("Horizontal", 55))
sketch3.addConstraint(Sketcher.Constraint("Horizontal", 9, 2, 20, 2))
sketch3.addConstraint(Sketcher.Constraint("Horizontal", 11, 2, 22, 2))
sketch3.addConstraint(Sketcher.Constraint("Horizontal", 13, 2, 24, 2))
sketch3.addConstraint(Sketcher.Constraint("Horizontal", 15, 2, 26, 2))
sketch3.addConstraint(Sketcher.Constraint("Horizontal", 17, 2, 28, 2))
sketch3.addConstraint(Sketcher.Constraint("Horizontal", 19, 2, 30, 2))
sketch3.addConstraint(Sketcher.Constraint("Vertical", 11, 2, 12, 2))
sketch3.addConstraint(Sketcher.Constraint("Vertical", 10, 2, 13, 2))
sketch3.addConstraint(Sketcher.Constraint("Vertical", 15, 2, 16, 2))
sketch3.addConstraint(Sketcher.Constraint("Vertical", 14, 2, 17, 2))
sketch3.addConstraint(Sketcher.Constraint("Vertical", 23, 2, 24, 2))
sketch3.addConstraint(Sketcher.Constraint("Vertical", 22, 2, 25, 2))
sketch3.addConstraint(Sketcher.Constraint("Vertical", 27, 2, 28, 2))
sketch3.addConstraint(Sketcher.Constraint("Vertical", 26, 2, 29, 2))
sketch3.addConstraint(Sketcher.Constraint("Vertical", 31, 2, 32, 2))
sketch3.addConstraint(Sketcher.Constraint("Vertical", 30, 2, 33, 2))
sketch3.addConstraint(Sketcher.Constraint("Vertical", 35, 2, 36, 2))
sketch3.addConstraint(Sketcher.Constraint("Vertical", 34, 2, 37, 2))
sketch3.addConstraint(Sketcher.Constraint("Vertical", 43, 2, 44, 2))
sketch3.addConstraint(Sketcher.Constraint("Vertical", 42, 2, 45, 2))
sketch3.addConstraint(Sketcher.Constraint("Vertical", 47, 2, 48, 2))
sketch3.addConstraint(Sketcher.Constraint("Vertical", 46, 2, 49, 2))
sketch3.addConstraint(Sketcher.Constraint("Vertical", 51, 2, 52, 2))
sketch3.addConstraint(Sketcher.Constraint("Vertical", 50, 2, 53, 2))
sketch3.addConstraint(Sketcher.Constraint("Equal", 19, 21))
sketch3.addConstraint(Sketcher.Constraint("Equal", 39, 41))
sketch3.addConstraint(Sketcher.Constraint("Equal", 55, 8))
sketch3.addConstraint(Sketcher.Constraint("Equal", 10, 12))
sketch3.addConstraint(Sketcher.Constraint("Equal", 14, 16))
sketch3.addConstraint(Sketcher.Constraint("Equal", 30, 32))
sketch3.addConstraint(Sketcher.Constraint("Equal", 34, 36))
sketch3.addConstraint(Sketcher.Constraint("Equal", 38, 40))
sketch3.addConstraint(Sketcher.Constraint("Equal", 42, 44))
sketch3.addConstraint(Sketcher.Constraint("Equal", 46, 48))
sketch3.addConstraint(Sketcher.Constraint("Equal", 50, 52))
sketch3.addConstraint(Sketcher.Constraint("DistanceX", 9, 1, 9, 2, 25.0))
sketch3.addConstraint(Sketcher.Constraint("DistanceX", 20, 2, 8, 2, 60.0))
sketch3.addConstraint(Sketcher.Constraint("DistanceY", 8, 2, 12, 2, 48.33))
sketch3.addConstraint(Sketcher.Constraint("DistanceY", 12, 2, 16, 2, 48.33))
sketch3.addConstraint(Sketcher.Constraint("DistanceY", 40, 2, 44, 2, 48.33))
sketch3.addConstraint(Sketcher.Constraint("DistanceY", 44, 2, 48, 2, 48.33))
sketch3.addConstraint(Sketcher.Constraint("DistanceY", 28, 2, 32, 2, 48.333))
sketch3.addConstraint(Sketcher.Constraint("DistanceY", 48, 2, 52, 2, 48.333))
sketch3.addConstraint(Sketcher.Constraint("DistanceX", 4, 2, 4, 1, 62.41287))
sketch3.addConstraint(Sketcher.Constraint("DistanceX", 6, 1, 6, 2, 177.756039))
sketch3.addConstraint(Sketcher.Constraint("DistanceY", 1, 2, 1, 1, 16.355991))
sketch3.addConstraint(Sketcher.Constraint("DistanceY", 7, 1, 7, 2, 1245.447721))
sketch3.addConstraint(Sketcher.Constraint("DistanceY", 3, 2, 0, 2, 543.601098))
sketch3.addConstraint(Sketcher.Constraint("DistanceY", 32, 2, 36, 2, 48.3333))
sketch3.addConstraint(Sketcher.Constraint("DistanceX", 0, 2, 0, 1, 178.644326))
sketch3.addConstraint(Sketcher.Constraint("DistanceY", 3, 2, -1, 1, 301.902841))
sketch3.addConstraint(Sketcher.Constraint("DistanceX", 3, 2, 8, 2, 66.985519))
sketch3.addConstraint(Sketcher.Constraint("DistanceY", 3, 2, 8, 2, 53.675739))
sketch3.addConstraint(Sketcher.Constraint("DistanceX", 36, 2, 40, 2, 0.446841))
sketch3.addConstraint(Sketcher.Constraint("DistanceY", 36, 2, 40, 2, 48.32572))
sketch3.addConstraint(Sketcher.Constraint("DistanceX", -1, 1, 0, 2, 32.490238))
sketch3.setExpression("Constraints[147]", "Params.sketch3_width")
pad3 = body.newObject("PartDesign::Pad", "Pad002")
pad3.Profile = sketch3
pad3.setExpression("Length", "Params.pad3_length")

# Sketch on XY plane
sketch4 = body.newObject("Sketcher::SketchObject", "Sketch003")
sketch4.AttachmentSupport = (doc.getObject("XY_Plane"), [""])
sketch4.MapMode = "FlatFace"
sketch4.addGeometry(Part.LineSegment(V(42, 87, 0), V(42, 64, 0)), False)
sketch4.addGeometry(Part.LineSegment(V(42, 64, 0), V(87, 64, 0)), False)
sketch4.addGeometry(Part.LineSegment(V(87, 64, 0), V(87, 87, 0)), False)
sketch4.addGeometry(Part.LineSegment(V(87, 87, 0), V(42, 87, 0)), False)
sketch4.addGeometry(Part.LineSegment(V(42, -9, 0), V(42, -33, 0)), False)
sketch4.addGeometry(Part.LineSegment(V(42, -33, 0), V(87, -33, 0)), False)
sketch4.addGeometry(Part.LineSegment(V(87, -33, 0), V(87, -9, 0)), False)
sketch4.addGeometry(Part.LineSegment(V(87, -9, 0), V(42, -9, 0)), False)
sketch4.addGeometry(Part.LineSegment(V(42, -58, 0), V(42, -81, 0)), False)
sketch4.addGeometry(Part.LineSegment(V(42, -81, 0), V(87, -81, 0)), False)
sketch4.addGeometry(Part.LineSegment(V(87, -81, 0), V(87, -58, 0)), False)
sketch4.addGeometry(Part.LineSegment(V(87, -58, 0), V(42, -58, 0)), False)
sketch4.addGeometry(Part.LineSegment(V(42, -106, 0), V(42, -130, 0)), False)
sketch4.addGeometry(Part.LineSegment(V(42, -130, 0), V(87, -130, 0)), False)
sketch4.addGeometry(Part.LineSegment(V(87, -130, 0), V(87, -106, 0)), False)
sketch4.addGeometry(Part.LineSegment(V(87, -106, 0), V(42, -106, 0)), False)
sketch4.addGeometry(Part.LineSegment(V(41, -152, 0), V(41, -176, 0)), False)
sketch4.addGeometry(Part.LineSegment(V(41, -176, 0), V(85, -176, 0)), False)
sketch4.addGeometry(Part.LineSegment(V(85, -176, 0), V(85, -152, 0)), False)
sketch4.addGeometry(Part.LineSegment(V(85, -152, 0), V(41, -152, 0)), False)
sketch4.addGeometry(Part.LineSegment(V(41, -198, 0), V(41, -222, 0)), False)
sketch4.addGeometry(Part.LineSegment(V(41, -222, 0), V(85, -222, 0)), False)
sketch4.addGeometry(Part.LineSegment(V(85, -222, 0), V(85, -198, 0)), False)
sketch4.addGeometry(Part.LineSegment(V(85, -198, 0), V(41, -198, 0)), False)
sketch4.addGeometry(Part.LineSegment(V(42, 40, 0), V(42, 16, 0)), False)
sketch4.addGeometry(Part.LineSegment(V(42, 16, 0), V(87, 16, 0)), False)
sketch4.addGeometry(Part.LineSegment(V(87, 16, 0), V(87, 40, 0)), False)
sketch4.addGeometry(Part.LineSegment(V(87, 40, 0), V(42, 40, 0)), False)
sketch4.addGeometry(Part.LineSegment(V(42, 136, 0), V(42, 112, 0)), False)
sketch4.addGeometry(Part.LineSegment(V(42, 112, 0), V(87, 112, 0)), False)
sketch4.addGeometry(Part.LineSegment(V(87, 112, 0), V(87, 136, 0)), False)
sketch4.addGeometry(Part.LineSegment(V(87, 136, 0), V(42, 136, 0)), False)
sketch4.addGeometry(Part.LineSegment(V(42, -250, 0), V(42, -274, 0)), False)
sketch4.addGeometry(Part.LineSegment(V(42, -274, 0), V(87, -274, 0)), False)
sketch4.addGeometry(Part.LineSegment(V(87, -274, 0), V(87, -250, 0)), False)
sketch4.addGeometry(Part.LineSegment(V(87, -250, 0), V(42, -250, 0)), False)
sketch4.addConstraint(Sketcher.Constraint("Coincident", 0, 2, 1, 1))
sketch4.addConstraint(Sketcher.Constraint("Coincident", 1, 2, 2, 1))
sketch4.addConstraint(Sketcher.Constraint("Coincident", 2, 2, 3, 1))
sketch4.addConstraint(Sketcher.Constraint("Coincident", 3, 2, 0, 1))
sketch4.addConstraint(Sketcher.Constraint("Coincident", 4, 2, 5, 1))
sketch4.addConstraint(Sketcher.Constraint("Coincident", 5, 2, 6, 1))
sketch4.addConstraint(Sketcher.Constraint("Coincident", 6, 2, 7, 1))
sketch4.addConstraint(Sketcher.Constraint("Coincident", 7, 2, 4, 1))
sketch4.addConstraint(Sketcher.Constraint("Coincident", 8, 2, 9, 1))
sketch4.addConstraint(Sketcher.Constraint("Coincident", 9, 2, 10, 1))
sketch4.addConstraint(Sketcher.Constraint("Coincident", 10, 2, 11, 1))
sketch4.addConstraint(Sketcher.Constraint("Coincident", 11, 2, 8, 1))
sketch4.addConstraint(Sketcher.Constraint("Coincident", 12, 2, 13, 1))
sketch4.addConstraint(Sketcher.Constraint("Coincident", 13, 2, 14, 1))
sketch4.addConstraint(Sketcher.Constraint("Coincident", 14, 2, 15, 1))
sketch4.addConstraint(Sketcher.Constraint("Coincident", 15, 2, 12, 1))
sketch4.addConstraint(Sketcher.Constraint("Coincident", 16, 2, 17, 1))
sketch4.addConstraint(Sketcher.Constraint("Coincident", 17, 2, 18, 1))
sketch4.addConstraint(Sketcher.Constraint("Coincident", 18, 2, 19, 1))
sketch4.addConstraint(Sketcher.Constraint("Coincident", 19, 2, 16, 1))
sketch4.addConstraint(Sketcher.Constraint("Coincident", 20, 2, 21, 1))
sketch4.addConstraint(Sketcher.Constraint("Coincident", 21, 2, 22, 1))
sketch4.addConstraint(Sketcher.Constraint("Coincident", 22, 2, 23, 1))
sketch4.addConstraint(Sketcher.Constraint("Coincident", 23, 2, 20, 1))
sketch4.addConstraint(Sketcher.Constraint("Coincident", 24, 2, 25, 1))
sketch4.addConstraint(Sketcher.Constraint("Coincident", 25, 2, 26, 1))
sketch4.addConstraint(Sketcher.Constraint("Coincident", 26, 2, 27, 1))
sketch4.addConstraint(Sketcher.Constraint("Coincident", 27, 2, 24, 1))
sketch4.addConstraint(Sketcher.Constraint("Coincident", 28, 2, 29, 1))
sketch4.addConstraint(Sketcher.Constraint("Coincident", 29, 2, 30, 1))
sketch4.addConstraint(Sketcher.Constraint("Coincident", 30, 2, 31, 1))
sketch4.addConstraint(Sketcher.Constraint("Coincident", 31, 2, 28, 1))
sketch4.addConstraint(Sketcher.Constraint("Coincident", 32, 2, 33, 1))
sketch4.addConstraint(Sketcher.Constraint("Coincident", 33, 2, 34, 1))
sketch4.addConstraint(Sketcher.Constraint("Coincident", 34, 2, 35, 1))
sketch4.addConstraint(Sketcher.Constraint("Coincident", 35, 2, 32, 1))
sketch4.addConstraint(Sketcher.Constraint("Vertical", 0))
sketch4.addConstraint(Sketcher.Constraint("Horizontal", 1))
sketch4.addConstraint(Sketcher.Constraint("Vertical", 2))
sketch4.addConstraint(Sketcher.Constraint("Horizontal", 3))
sketch4.addConstraint(Sketcher.Constraint("Vertical", 4))
sketch4.addConstraint(Sketcher.Constraint("Horizontal", 5))
sketch4.addConstraint(Sketcher.Constraint("Vertical", 6))
sketch4.addConstraint(Sketcher.Constraint("Horizontal", 7))
sketch4.addConstraint(Sketcher.Constraint("Vertical", 8))
sketch4.addConstraint(Sketcher.Constraint("Horizontal", 9))
sketch4.addConstraint(Sketcher.Constraint("Vertical", 10))
sketch4.addConstraint(Sketcher.Constraint("Horizontal", 11))
sketch4.addConstraint(Sketcher.Constraint("Vertical", 12))
sketch4.addConstraint(Sketcher.Constraint("Horizontal", 13))
sketch4.addConstraint(Sketcher.Constraint("Vertical", 14))
sketch4.addConstraint(Sketcher.Constraint("Horizontal", 15))
sketch4.addConstraint(Sketcher.Constraint("Vertical", 16))
sketch4.addConstraint(Sketcher.Constraint("Horizontal", 17))
sketch4.addConstraint(Sketcher.Constraint("Vertical", 18))
sketch4.addConstraint(Sketcher.Constraint("Horizontal", 19))
sketch4.addConstraint(Sketcher.Constraint("Vertical", 20))
sketch4.addConstraint(Sketcher.Constraint("Horizontal", 21))
sketch4.addConstraint(Sketcher.Constraint("Vertical", 22))
sketch4.addConstraint(Sketcher.Constraint("Horizontal", 23))
sketch4.addConstraint(Sketcher.Constraint("Vertical", 24))
sketch4.addConstraint(Sketcher.Constraint("Horizontal", 25))
sketch4.addConstraint(Sketcher.Constraint("Vertical", 26))
sketch4.addConstraint(Sketcher.Constraint("Horizontal", 27))
sketch4.addConstraint(Sketcher.Constraint("Vertical", 28))
sketch4.addConstraint(Sketcher.Constraint("Horizontal", 29))
sketch4.addConstraint(Sketcher.Constraint("Vertical", 30))
sketch4.addConstraint(Sketcher.Constraint("Horizontal", 31))
sketch4.addConstraint(Sketcher.Constraint("Vertical", 32))
sketch4.addConstraint(Sketcher.Constraint("Horizontal", 33))
sketch4.addConstraint(Sketcher.Constraint("Vertical", 34))
sketch4.addConstraint(Sketcher.Constraint("Horizontal", 35))
sketch4.addConstraint(Sketcher.Constraint("Vertical", 3, 2, 4, 2))
sketch4.addConstraint(Sketcher.Constraint("Vertical", 2, 2, 5, 2))
sketch4.addConstraint(Sketcher.Constraint("Vertical", 7, 2, 8, 2))
sketch4.addConstraint(Sketcher.Constraint("Vertical", 6, 2, 9, 2))
sketch4.addConstraint(Sketcher.Constraint("Vertical", 11, 2, 12, 2))
sketch4.addConstraint(Sketcher.Constraint("Vertical", 10, 2, 13, 2))
sketch4.addConstraint(Sketcher.Constraint("Vertical", 19, 2, 20, 2))
sketch4.addConstraint(Sketcher.Constraint("Vertical", 18, 2, 21, 2))
sketch4.addConstraint(Sketcher.Constraint("Vertical", 15, 2, 24, 2))
sketch4.addConstraint(Sketcher.Constraint("Vertical", 14, 2, 25, 2))
sketch4.addConstraint(Sketcher.Constraint("Vertical", 27, 2, 28, 2))
sketch4.addConstraint(Sketcher.Constraint("Vertical", 26, 2, 29, 2))
sketch4.addConstraint(Sketcher.Constraint("Vertical", 31, 2, 32, 2))
sketch4.addConstraint(Sketcher.Constraint("Vertical", 30, 2, 33, 2))
sketch4.addConstraint(Sketcher.Constraint("Equal", 15, 17))
sketch4.addConstraint(Sketcher.Constraint("Equal", 2, 4))
sketch4.addConstraint(Sketcher.Constraint("Equal", 6, 8))
sketch4.addConstraint(Sketcher.Constraint("Equal", 10, 12))
sketch4.addConstraint(Sketcher.Constraint("Equal", 14, 16))
sketch4.addConstraint(Sketcher.Constraint("Equal", 18, 20))
sketch4.addConstraint(Sketcher.Constraint("Equal", 22, 24))
sketch4.addConstraint(Sketcher.Constraint("Equal", 26, 28))
sketch4.addConstraint(Sketcher.Constraint("Equal", 30, 32))
sketch4.addConstraint(Sketcher.Constraint("DistanceY", 8, 2, -1, 1, 81.323099))
sketch4.addConstraint(Sketcher.Constraint("DistanceY", 20, 2, 12, 2, 91.660501))
sketch4.addConstraint(Sketcher.Constraint("DistanceX", 1, 1, 1, 2, 44.395065))
sketch4.addConstraint(Sketcher.Constraint("DistanceY", 0, 2, 0, 1, 23.654323))
sketch4.addConstraint(Sketcher.Constraint("DistanceX", -1, 1, 0, 2, 42.229739))
sketch4.addConstraint(Sketcher.Constraint("DistanceY", -1, 1, 0, 2, 63.559629))
sketch4.addConstraint(Sketcher.Constraint("DistanceY", 4, 2, -1, 1, 32.536058))
sketch4.addConstraint(Sketcher.Constraint("DistanceY", 12, 2, -1, 1, 130.110141))
sketch4.addConstraint(Sketcher.Constraint("DistanceY", 16, 2, -1, 1, 175.940391))
sketch4.addConstraint(Sketcher.Constraint("DistanceX", -1, 1, 17, 2, 85.146409))
sketch4.addConstraint(Sketcher.Constraint("DistanceY", -1, 1, 28, 2, 112.34667))
sketch4.addConstraint(Sketcher.Constraint("DistanceY", 34, 2, -1, 1, 249.860151))
sketch4.addConstraint(Sketcher.Constraint("DistanceY", 7, 2, 24, 2, 25.132718))
pad4 = body.newObject("PartDesign::Pad", "Pad003")
pad4.Profile = sketch4
pad4.setExpression("Length", "Params.pad4_length")
body2 = doc.addObject("PartDesign::Body", "Body001")
doc.recompute()

mirroring = doc.addObject("Part::Mirroring", "Mirroring")
mirroring.Source = body
mirroring.Base = V(311.078124, 0, 0)
mirroring.Normal = V(1, 0, 0)
body2.BaseFeature = mirroring
doc.recompute()
body.Visibility = False
mirroring.Visibility = False

doc.recompute()
